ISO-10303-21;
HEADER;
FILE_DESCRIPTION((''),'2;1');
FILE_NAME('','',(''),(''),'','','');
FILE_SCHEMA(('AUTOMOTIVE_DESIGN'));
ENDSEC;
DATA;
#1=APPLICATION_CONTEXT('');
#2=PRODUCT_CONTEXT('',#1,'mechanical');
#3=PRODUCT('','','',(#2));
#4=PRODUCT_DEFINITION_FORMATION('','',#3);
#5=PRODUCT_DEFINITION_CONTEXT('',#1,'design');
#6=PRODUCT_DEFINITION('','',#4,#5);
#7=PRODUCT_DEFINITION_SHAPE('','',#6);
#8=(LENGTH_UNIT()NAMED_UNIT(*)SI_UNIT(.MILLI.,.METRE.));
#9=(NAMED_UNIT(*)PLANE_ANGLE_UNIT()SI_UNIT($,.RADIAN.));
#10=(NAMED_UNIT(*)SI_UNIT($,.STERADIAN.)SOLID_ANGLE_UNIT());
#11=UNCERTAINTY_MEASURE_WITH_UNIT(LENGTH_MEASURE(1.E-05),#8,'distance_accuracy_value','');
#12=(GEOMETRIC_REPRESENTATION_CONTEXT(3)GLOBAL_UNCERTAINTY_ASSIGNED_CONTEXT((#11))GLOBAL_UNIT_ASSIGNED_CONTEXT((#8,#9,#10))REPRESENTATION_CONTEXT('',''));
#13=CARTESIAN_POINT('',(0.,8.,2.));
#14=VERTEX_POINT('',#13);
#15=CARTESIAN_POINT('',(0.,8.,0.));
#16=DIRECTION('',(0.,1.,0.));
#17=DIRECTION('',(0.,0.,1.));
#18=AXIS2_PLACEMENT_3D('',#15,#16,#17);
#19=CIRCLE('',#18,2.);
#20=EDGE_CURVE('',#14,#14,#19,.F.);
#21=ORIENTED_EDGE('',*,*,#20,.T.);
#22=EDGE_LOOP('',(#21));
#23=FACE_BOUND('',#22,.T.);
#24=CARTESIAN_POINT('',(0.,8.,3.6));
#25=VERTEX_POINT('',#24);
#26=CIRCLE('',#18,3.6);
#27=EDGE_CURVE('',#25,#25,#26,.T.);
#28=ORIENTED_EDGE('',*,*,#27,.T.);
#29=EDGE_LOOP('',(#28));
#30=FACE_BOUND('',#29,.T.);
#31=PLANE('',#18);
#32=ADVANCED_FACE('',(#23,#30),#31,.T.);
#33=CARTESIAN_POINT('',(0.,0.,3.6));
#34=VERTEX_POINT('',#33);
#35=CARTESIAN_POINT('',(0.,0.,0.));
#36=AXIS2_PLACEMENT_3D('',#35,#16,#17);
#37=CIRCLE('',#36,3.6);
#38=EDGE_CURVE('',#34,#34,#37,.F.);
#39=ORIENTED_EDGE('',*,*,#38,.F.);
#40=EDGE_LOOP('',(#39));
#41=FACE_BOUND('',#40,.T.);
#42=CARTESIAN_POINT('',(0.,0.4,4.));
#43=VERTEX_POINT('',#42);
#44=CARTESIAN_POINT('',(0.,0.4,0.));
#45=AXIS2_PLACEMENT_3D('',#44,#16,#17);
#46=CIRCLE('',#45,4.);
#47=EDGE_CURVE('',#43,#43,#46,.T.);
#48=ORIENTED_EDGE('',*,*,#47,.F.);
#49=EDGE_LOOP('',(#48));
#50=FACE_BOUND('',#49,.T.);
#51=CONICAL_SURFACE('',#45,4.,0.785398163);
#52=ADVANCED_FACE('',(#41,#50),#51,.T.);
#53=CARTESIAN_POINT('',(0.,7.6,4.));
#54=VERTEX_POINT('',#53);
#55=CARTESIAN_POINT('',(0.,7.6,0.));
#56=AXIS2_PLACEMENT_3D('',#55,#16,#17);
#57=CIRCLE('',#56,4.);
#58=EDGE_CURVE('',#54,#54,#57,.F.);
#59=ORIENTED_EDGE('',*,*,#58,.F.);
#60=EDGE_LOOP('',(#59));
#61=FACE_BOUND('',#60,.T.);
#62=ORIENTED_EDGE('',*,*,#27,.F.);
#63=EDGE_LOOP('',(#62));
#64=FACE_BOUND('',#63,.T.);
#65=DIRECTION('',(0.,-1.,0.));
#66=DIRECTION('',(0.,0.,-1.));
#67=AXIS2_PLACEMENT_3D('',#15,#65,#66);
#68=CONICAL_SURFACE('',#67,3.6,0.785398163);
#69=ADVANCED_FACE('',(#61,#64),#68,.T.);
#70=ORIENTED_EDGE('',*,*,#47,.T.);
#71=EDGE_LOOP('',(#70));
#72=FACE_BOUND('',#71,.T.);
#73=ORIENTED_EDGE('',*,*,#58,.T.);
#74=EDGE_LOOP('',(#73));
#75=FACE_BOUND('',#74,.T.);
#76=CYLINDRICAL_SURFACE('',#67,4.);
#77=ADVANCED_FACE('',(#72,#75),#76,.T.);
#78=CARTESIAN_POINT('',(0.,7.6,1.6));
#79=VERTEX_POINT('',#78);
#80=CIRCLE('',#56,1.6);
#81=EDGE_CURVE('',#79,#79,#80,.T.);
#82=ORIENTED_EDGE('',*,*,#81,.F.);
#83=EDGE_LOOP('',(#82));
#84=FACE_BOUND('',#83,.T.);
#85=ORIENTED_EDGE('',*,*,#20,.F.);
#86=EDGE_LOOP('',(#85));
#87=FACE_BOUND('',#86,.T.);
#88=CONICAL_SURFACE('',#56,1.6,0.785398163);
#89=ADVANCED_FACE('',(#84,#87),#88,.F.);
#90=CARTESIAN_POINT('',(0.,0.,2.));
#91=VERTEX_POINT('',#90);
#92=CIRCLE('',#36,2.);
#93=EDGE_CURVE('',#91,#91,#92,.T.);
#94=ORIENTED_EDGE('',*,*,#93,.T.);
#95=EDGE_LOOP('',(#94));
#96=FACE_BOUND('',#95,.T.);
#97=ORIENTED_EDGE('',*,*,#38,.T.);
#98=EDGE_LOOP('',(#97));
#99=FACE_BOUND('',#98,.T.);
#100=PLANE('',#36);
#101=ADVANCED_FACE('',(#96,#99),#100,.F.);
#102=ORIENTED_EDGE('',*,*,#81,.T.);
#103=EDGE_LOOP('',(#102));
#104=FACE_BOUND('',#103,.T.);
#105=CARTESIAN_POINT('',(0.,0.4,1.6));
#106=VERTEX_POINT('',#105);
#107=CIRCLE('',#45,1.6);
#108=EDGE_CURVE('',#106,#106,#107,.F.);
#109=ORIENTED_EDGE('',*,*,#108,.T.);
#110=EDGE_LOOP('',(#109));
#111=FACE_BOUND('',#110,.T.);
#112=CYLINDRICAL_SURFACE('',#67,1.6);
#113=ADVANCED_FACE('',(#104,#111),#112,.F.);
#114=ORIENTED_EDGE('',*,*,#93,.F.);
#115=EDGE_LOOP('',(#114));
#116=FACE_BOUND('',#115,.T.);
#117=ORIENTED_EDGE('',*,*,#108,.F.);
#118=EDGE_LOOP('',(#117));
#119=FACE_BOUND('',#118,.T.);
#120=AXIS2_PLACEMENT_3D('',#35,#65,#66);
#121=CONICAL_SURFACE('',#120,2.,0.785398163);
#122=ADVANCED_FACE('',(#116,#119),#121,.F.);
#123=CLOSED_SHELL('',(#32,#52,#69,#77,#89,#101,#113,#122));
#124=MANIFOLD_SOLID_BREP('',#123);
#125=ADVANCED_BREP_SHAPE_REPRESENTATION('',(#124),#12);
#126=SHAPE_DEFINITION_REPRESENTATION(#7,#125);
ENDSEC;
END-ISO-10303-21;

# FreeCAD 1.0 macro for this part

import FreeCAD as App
import Part
import Sketcher
from FreeCAD import Vector


def edges_at(feature, points):
    """Names of the edges that pass closest to the given points."""
    edges = feature.Shape.Edges
    near = lambda p: min(range(len(edges)), key=lambda i: edges[i].distToShape(Part.Vertex(*p))[0])
    return sorted({f"Edge{near(p) + 1}" for p in points})

doc = App.newDocument("Part")
body = doc.addObject("PartDesign::Body", "Body")

sketch1 = body.newObject("Sketcher::SketchObject", "Sketch")
sketch1.AttachmentSupport = (doc.getObject("XZ_Plane"), [""])
sketch1.MapMode = "FlatFace"
sketch1.addGeometry([
    Part.Circle(Vector(0, 0, 0), Vector(0, 0, 1), 4),
    Part.Circle(Vector(0, 0, 0), Vector(0, 0, 1), 1.6),
], False)
sketch1.addConstraint([
    Sketcher.Constraint("Coincident", 0, 3, -1, 1),
    Sketcher.Constraint("Coincident", 1, 3, -1, 1),
    Sketcher.Constraint("Diameter", 0, 8.0),
    Sketcher.Constraint("Diameter", 1, 3.2),
])
pad1 = body.newObject("PartDesign::Pad", "Pad")
pad1.Profile = sketch1
pad1.Length = 8
pad1.Reversed = True
doc.recompute()

chamfer = body.newObject("PartDesign::Chamfer", "Chamfer")
chamfer.Base = (pad1, edges_at(pad1, [
    (-4, 0, 0),
    (-4, 8, 0),
    (-1.6, 0, 0),
    (-1.6, 8, 0),
]))
chamfer.Size = 0.4

doc.recompute()
